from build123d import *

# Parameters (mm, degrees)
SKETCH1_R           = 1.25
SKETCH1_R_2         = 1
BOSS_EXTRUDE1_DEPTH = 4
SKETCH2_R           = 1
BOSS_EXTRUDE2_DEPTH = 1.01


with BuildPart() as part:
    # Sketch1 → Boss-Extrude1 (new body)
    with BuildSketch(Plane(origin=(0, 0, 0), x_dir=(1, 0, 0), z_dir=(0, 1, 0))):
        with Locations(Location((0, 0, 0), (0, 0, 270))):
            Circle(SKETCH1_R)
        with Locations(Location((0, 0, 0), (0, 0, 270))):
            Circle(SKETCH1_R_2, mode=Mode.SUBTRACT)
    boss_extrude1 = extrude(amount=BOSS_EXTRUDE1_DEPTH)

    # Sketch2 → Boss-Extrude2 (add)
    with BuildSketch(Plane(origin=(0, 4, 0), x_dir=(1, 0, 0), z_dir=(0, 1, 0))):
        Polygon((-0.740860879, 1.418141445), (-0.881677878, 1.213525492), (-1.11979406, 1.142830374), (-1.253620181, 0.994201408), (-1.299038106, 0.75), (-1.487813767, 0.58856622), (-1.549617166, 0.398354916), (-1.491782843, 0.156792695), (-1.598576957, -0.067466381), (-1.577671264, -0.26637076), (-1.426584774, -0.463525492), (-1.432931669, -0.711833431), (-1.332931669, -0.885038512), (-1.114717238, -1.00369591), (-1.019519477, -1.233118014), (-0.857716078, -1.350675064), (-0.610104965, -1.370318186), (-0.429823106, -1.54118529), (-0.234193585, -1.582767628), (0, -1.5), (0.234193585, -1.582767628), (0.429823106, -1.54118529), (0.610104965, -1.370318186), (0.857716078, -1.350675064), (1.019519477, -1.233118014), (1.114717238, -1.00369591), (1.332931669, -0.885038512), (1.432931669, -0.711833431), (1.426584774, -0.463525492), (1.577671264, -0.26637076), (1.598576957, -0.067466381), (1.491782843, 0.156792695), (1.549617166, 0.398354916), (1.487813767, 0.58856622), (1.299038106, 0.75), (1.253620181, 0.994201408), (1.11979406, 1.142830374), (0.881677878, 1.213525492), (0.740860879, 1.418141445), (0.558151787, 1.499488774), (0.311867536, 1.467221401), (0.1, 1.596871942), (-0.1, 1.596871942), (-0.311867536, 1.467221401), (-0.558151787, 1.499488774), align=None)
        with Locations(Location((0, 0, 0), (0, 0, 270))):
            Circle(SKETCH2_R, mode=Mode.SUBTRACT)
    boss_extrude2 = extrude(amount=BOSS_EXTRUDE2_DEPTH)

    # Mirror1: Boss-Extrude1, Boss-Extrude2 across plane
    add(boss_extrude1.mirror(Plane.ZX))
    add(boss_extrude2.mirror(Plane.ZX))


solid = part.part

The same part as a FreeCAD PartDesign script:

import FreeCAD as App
import Part
import Sketcher

V = App.Vector
Q = App.Units.Quantity


def add_polygon(sketch, points):
    """Adds a closed chain of lines whose ends are joined by coincident constraints."""
    first, n = sketch.GeometryCount, len(points)
    for a, b in zip(points, points[1:] + points[:1]):
        sketch.addGeometry(Part.LineSegment(App.Vector(*a, 0), App.Vector(*b, 0)), False)
    for i in range(n):
        sketch.addConstraint(Sketcher.Constraint("Coincident", first + i, 2, first + (i + 1) % n, 1))

doc = App.newDocument("Part")
body = doc.addObject("PartDesign::Body", "Body")

# Sketch on XZ plane
sketch1 = body.newObject("Sketcher::SketchObject", "Sketch")
sketch1.AttachmentSupport = (doc.getObject("XZ_Plane"), [""])
sketch1.MapMode = "FlatFace"
sketch1.addGeometry(Part.Circle(V(0, 0, 0), V(0, 0, 1), 1.2), False)
sketch1.addGeometry(Part.Circle(V(0, 0, 0), V(0, 0, 1), 1), False)
sketch1.addConstraint(Sketcher.Constraint("Coincident", 0, 3, -1, 1))
sketch1.addConstraint(Sketcher.Constraint("Coincident", 1, 3, -1, 1))
sketch1.addConstraint(Sketcher.Constraint("Diameter", 1, 2.0))
sketch1.addConstraint(Sketcher.Constraint("Diameter", 0, 2.5))
pad1 = body.newObject("PartDesign::Pad", "Pad")
pad1.Profile = sketch1
pad1.Length = 4
pad1.Reversed = True

# Sketch on XZ plane
sketch2 = body.newObject("Sketcher::SketchObject", "Sketch001")
sketch2.AttachmentSupport = (doc.getObject("XZ_Plane"), [""])
sketch2.MapMode = "FlatFace"
sketch2.AttachmentOffset = App.Placement(V(0, 0, -4), App.Rotation())
add_polygon(sketch2, [(-0.74, -1.42), (-0.88, -1.21), (-1.12, -1.14), (-1.25, -0.99), (-1.3, -0.75), (-1.49, -0.59), (-1.55, -0.4), (-1.49, -0.16), (-1.6, 0.07), (-1.58, 0.27), (-1.43, 0.46), (-1.43, 0.71), (-1.33, 0.89), (-1.11, 1), (-1.02, 1.23), (-0.86, 1.35), (-0.61, 1.37), (-0.43, 1.54), (-0.23, 1.58), (0, 1.5), (0.23, 1.58), (0.43, 1.54), (0.61, 1.37), (0.86, 1.35), (1.02, 1.23), (1.11, 1), (1.33, 0.89), (1.43, 0.71), (1.43, 0.46), (1.58, 0.27), (1.6, 0.07), (1.49, -0.16), (1.55, -0.4), (1.49, -0.59), (1.3, -0.75), (1.25, -0.99), (1.12, -1.14), (0.88, -1.21), (0.74, -1.42), (0.56, -1.5), (0.31, -1.47), (0.1, -1.6), (-0.1, -1.6), (-0.31, -1.47), (-0.56, -1.5)])  # lines 0-44
sketch2.addGeometry(Part.Circle(V(0, 0, 0), V(0, 0, 1), 1), False)  # 45
sketch2.addConstraint(Sketcher.Constraint("Horizontal", 41))
sketch2.addConstraint(Sketcher.Constraint("Coincident", 45, 3, -1, 1))
sketch2.addConstraint(Sketcher.Constraint("Symmetric", 17, 2, 19, 2, -2))
sketch2.addConstraint(Sketcher.Constraint("Symmetric", 16, 2, 20, 2, -2))
sketch2.addConstraint(Sketcher.Constraint("Symmetric", 15, 2, 21, 2, -2))
sketch2.addConstraint(Sketcher.Constraint("Symmetric", 14, 2, 22, 2, -2))
sketch2.addConstraint(Sketcher.Constraint("Symmetric", 13, 2, 23, 2, -2))
sketch2.addConstraint(Sketcher.Constraint("Symmetric", 12, 2, 24, 2, -2))
sketch2.addConstraint(Sketcher.Constraint("Symmetric", 11, 2, 25, 2, -2))
sketch2.addConstraint(Sketcher.Constraint("Symmetric", 10, 2, 26, 2, -2))
sketch2.addConstraint(Sketcher.Constraint("Symmetric", 9, 2, 27, 2, -2))
sketch2.addConstraint(Sketcher.Constraint("Symmetric", 8, 2, 28, 2, -2))
sketch2.addConstraint(Sketcher.Constraint("Symmetric", 7, 2, 29, 2, -2))
sketch2.addConstraint(Sketcher.Constraint("Symmetric", 6, 2, 30, 2, -2))
sketch2.addConstraint(Sketcher.Constraint("Symmetric", 5, 2, 31, 2, -2))
sketch2.addConstraint(Sketcher.Constraint("Symmetric", 4, 2, 32, 2, -2))
sketch2.addConstraint(Sketcher.Constraint("Symmetric", 3, 2, 33, 2, -2))
sketch2.addConstraint(Sketcher.Constraint("Symmetric", 2, 2, 34, 2, -2))
sketch2.addConstraint(Sketcher.Constraint("Symmetric", 1, 2, 35, 2, -2))
sketch2.addConstraint(Sketcher.Constraint("Symmetric", 0, 2, 36, 2, -2))
sketch2.addConstraint(Sketcher.Constraint("Symmetric", 39, 2, 42, 2, -2))
sketch2.addConstraint(Sketcher.Constraint("Symmetric", 38, 2, 43, 2, -2))
sketch2.addConstraint(Sketcher.Constraint("Symmetric", 37, 2, 44, 2, -2))
sketch2.addConstraint(Sketcher.Constraint("PointOnObject", 18, 2, -2))
sketch2.addConstraint(Sketcher.Constraint("Equal", 0, 1))
sketch2.addConstraint(Sketcher.Constraint("Equal", 1, 3))
sketch2.addConstraint(Sketcher.Constraint("Equal", 3, 4))
sketch2.addConstraint(Sketcher.Constraint("Equal", 2, 5))
sketch2.addConstraint(Sketcher.Constraint("Equal", 4, 6))
sketch2.addConstraint(Sketcher.Constraint("Equal", 6, 7))
sketch2.addConstraint(Sketcher.Constraint("Equal", 5, 8))
sketch2.addConstraint(Sketcher.Constraint("Equal", 7, 9))
sketch2.addConstraint(Sketcher.Constraint("Equal", 9, 10))
sketch2.addConstraint(Sketcher.Constraint("Equal", 8, 11))
sketch2.addConstraint(Sketcher.Constraint("Equal", 10, 12))
sketch2.addConstraint(Sketcher.Constraint("Equal", 12, 13))
sketch2.addConstraint(Sketcher.Constraint("Equal", 11, 14))
sketch2.addConstraint(Sketcher.Constraint("Equal", 13, 15))
sketch2.addConstraint(Sketcher.Constraint("Equal", 15, 16))
sketch2.addConstraint(Sketcher.Constraint("Equal", 14, 17))
sketch2.addConstraint(Sketcher.Constraint("Equal", 16, 18))
sketch2.addConstraint(Sketcher.Constraint("Equal", 35, 38))
sketch2.addConstraint(Sketcher.Constraint("Equal", 37, 39))
sketch2.addConstraint(Sketcher.Constraint("Equal", 39, 40))
sketch2.addConstraint(Sketcher.Constraint("Equal", 40, 42))
sketch2.addConstraint(Sketcher.Constraint("Diameter", 45, 2.0))
sketch2.addConstraint(Sketcher.Constraint("Angle", 2, Q("132 deg")))
sketch2.addConstraint(Sketcher.Constraint("Angle", 5, Q("108 deg")))
sketch2.addConstraint(Sketcher.Constraint("Angle", 8, Q("84 deg")))
sketch2.addConstraint(Sketcher.Constraint("Angle", 11, Q("60 deg")))
sketch2.addConstraint(Sketcher.Constraint("Angle", 14, Q("36 deg")))
sketch2.addConstraint(Sketcher.Constraint("Angle", 17, Q("12 deg")))
sketch2.addConstraint(Sketcher.Constraint("Angle", 38, Q("-156 deg")))
sketch2.addConstraint(Sketcher.Constraint("DistanceX", 41, 2, 41, 1, 0.2))
sketch2.addConstraint(Sketcher.Constraint("Distance", 2, 0.2))
sketch2.addConstraint(Sketcher.Constraint("DistanceY", -1, 1, 18, 2, 1.5))
sketch2.addConstraint(Sketcher.Constraint("DistanceY", 3, 2, -1, 1, 0.75))
sketch2.addConstraint(Sketcher.Constraint("DistanceX", 12, 2, 14, 2, 0.257001))
sketch2.addConstraint(Sketcher.Constraint("DistanceY", 2, 2, -1, 1, 0.994201))
sketch2.addConstraint(Sketcher.Constraint("DistanceX", 6, 2, 9, 2, 0.065198))
sketch2.addConstraint(Sketcher.Constraint("DistanceY", 13, 2, 15, 2, 0.1372))
sketch2.addConstraint(Sketcher.Constraint("DistanceX", 15, 2, 19, 2, 0.844299))
sketch2.addConstraint(Sketcher.Constraint("Distance", 0, 0.248389))
sketch2.addConstraint(Sketcher.Constraint("DistanceX", 2, 2, -1, 1, 1.25362))
sketch2.addConstraint(Sketcher.Constraint("DistanceX", 8, 2, -1, 1, 1.577671))
sketch2.addConstraint(Sketcher.Constraint("DistanceY", -1, 1, 8, 2, 0.266371))
sketch2.addConstraint(Sketcher.Constraint("DistanceX", 10, 2, -1, 1, 1.432932))
sketch2.addConstraint(Sketcher.Constraint("DistanceY", -1, 1, 11, 2, 0.885039))
sketch2.addConstraint(Sketcher.Constraint("DistanceX", -1, 1, 37, 2, 0.740861))
sketch2.addConstraint(Sketcher.Constraint("DistanceY", 37, 2, -1, 1, 1.418141))
sketch2.addConstraint(Sketcher.Constraint("DistanceY", 39, 2, -1, 1, 1.467221))
pad2 = body.newObject("PartDesign::Pad", "Pad001")
pad2.Profile = sketch2
pad2.Length = 1.01
pad2.Reversed = True
doc.recompute()

mirrored = body.newObject("PartDesign::Mirrored", "Mirrored")
mirrored.Originals = [pad1, pad2]
mirrored.MirrorPlane = (doc.getObject("XZ_Plane"), [""])
body.Tip = mirrored

doc.recompute()
